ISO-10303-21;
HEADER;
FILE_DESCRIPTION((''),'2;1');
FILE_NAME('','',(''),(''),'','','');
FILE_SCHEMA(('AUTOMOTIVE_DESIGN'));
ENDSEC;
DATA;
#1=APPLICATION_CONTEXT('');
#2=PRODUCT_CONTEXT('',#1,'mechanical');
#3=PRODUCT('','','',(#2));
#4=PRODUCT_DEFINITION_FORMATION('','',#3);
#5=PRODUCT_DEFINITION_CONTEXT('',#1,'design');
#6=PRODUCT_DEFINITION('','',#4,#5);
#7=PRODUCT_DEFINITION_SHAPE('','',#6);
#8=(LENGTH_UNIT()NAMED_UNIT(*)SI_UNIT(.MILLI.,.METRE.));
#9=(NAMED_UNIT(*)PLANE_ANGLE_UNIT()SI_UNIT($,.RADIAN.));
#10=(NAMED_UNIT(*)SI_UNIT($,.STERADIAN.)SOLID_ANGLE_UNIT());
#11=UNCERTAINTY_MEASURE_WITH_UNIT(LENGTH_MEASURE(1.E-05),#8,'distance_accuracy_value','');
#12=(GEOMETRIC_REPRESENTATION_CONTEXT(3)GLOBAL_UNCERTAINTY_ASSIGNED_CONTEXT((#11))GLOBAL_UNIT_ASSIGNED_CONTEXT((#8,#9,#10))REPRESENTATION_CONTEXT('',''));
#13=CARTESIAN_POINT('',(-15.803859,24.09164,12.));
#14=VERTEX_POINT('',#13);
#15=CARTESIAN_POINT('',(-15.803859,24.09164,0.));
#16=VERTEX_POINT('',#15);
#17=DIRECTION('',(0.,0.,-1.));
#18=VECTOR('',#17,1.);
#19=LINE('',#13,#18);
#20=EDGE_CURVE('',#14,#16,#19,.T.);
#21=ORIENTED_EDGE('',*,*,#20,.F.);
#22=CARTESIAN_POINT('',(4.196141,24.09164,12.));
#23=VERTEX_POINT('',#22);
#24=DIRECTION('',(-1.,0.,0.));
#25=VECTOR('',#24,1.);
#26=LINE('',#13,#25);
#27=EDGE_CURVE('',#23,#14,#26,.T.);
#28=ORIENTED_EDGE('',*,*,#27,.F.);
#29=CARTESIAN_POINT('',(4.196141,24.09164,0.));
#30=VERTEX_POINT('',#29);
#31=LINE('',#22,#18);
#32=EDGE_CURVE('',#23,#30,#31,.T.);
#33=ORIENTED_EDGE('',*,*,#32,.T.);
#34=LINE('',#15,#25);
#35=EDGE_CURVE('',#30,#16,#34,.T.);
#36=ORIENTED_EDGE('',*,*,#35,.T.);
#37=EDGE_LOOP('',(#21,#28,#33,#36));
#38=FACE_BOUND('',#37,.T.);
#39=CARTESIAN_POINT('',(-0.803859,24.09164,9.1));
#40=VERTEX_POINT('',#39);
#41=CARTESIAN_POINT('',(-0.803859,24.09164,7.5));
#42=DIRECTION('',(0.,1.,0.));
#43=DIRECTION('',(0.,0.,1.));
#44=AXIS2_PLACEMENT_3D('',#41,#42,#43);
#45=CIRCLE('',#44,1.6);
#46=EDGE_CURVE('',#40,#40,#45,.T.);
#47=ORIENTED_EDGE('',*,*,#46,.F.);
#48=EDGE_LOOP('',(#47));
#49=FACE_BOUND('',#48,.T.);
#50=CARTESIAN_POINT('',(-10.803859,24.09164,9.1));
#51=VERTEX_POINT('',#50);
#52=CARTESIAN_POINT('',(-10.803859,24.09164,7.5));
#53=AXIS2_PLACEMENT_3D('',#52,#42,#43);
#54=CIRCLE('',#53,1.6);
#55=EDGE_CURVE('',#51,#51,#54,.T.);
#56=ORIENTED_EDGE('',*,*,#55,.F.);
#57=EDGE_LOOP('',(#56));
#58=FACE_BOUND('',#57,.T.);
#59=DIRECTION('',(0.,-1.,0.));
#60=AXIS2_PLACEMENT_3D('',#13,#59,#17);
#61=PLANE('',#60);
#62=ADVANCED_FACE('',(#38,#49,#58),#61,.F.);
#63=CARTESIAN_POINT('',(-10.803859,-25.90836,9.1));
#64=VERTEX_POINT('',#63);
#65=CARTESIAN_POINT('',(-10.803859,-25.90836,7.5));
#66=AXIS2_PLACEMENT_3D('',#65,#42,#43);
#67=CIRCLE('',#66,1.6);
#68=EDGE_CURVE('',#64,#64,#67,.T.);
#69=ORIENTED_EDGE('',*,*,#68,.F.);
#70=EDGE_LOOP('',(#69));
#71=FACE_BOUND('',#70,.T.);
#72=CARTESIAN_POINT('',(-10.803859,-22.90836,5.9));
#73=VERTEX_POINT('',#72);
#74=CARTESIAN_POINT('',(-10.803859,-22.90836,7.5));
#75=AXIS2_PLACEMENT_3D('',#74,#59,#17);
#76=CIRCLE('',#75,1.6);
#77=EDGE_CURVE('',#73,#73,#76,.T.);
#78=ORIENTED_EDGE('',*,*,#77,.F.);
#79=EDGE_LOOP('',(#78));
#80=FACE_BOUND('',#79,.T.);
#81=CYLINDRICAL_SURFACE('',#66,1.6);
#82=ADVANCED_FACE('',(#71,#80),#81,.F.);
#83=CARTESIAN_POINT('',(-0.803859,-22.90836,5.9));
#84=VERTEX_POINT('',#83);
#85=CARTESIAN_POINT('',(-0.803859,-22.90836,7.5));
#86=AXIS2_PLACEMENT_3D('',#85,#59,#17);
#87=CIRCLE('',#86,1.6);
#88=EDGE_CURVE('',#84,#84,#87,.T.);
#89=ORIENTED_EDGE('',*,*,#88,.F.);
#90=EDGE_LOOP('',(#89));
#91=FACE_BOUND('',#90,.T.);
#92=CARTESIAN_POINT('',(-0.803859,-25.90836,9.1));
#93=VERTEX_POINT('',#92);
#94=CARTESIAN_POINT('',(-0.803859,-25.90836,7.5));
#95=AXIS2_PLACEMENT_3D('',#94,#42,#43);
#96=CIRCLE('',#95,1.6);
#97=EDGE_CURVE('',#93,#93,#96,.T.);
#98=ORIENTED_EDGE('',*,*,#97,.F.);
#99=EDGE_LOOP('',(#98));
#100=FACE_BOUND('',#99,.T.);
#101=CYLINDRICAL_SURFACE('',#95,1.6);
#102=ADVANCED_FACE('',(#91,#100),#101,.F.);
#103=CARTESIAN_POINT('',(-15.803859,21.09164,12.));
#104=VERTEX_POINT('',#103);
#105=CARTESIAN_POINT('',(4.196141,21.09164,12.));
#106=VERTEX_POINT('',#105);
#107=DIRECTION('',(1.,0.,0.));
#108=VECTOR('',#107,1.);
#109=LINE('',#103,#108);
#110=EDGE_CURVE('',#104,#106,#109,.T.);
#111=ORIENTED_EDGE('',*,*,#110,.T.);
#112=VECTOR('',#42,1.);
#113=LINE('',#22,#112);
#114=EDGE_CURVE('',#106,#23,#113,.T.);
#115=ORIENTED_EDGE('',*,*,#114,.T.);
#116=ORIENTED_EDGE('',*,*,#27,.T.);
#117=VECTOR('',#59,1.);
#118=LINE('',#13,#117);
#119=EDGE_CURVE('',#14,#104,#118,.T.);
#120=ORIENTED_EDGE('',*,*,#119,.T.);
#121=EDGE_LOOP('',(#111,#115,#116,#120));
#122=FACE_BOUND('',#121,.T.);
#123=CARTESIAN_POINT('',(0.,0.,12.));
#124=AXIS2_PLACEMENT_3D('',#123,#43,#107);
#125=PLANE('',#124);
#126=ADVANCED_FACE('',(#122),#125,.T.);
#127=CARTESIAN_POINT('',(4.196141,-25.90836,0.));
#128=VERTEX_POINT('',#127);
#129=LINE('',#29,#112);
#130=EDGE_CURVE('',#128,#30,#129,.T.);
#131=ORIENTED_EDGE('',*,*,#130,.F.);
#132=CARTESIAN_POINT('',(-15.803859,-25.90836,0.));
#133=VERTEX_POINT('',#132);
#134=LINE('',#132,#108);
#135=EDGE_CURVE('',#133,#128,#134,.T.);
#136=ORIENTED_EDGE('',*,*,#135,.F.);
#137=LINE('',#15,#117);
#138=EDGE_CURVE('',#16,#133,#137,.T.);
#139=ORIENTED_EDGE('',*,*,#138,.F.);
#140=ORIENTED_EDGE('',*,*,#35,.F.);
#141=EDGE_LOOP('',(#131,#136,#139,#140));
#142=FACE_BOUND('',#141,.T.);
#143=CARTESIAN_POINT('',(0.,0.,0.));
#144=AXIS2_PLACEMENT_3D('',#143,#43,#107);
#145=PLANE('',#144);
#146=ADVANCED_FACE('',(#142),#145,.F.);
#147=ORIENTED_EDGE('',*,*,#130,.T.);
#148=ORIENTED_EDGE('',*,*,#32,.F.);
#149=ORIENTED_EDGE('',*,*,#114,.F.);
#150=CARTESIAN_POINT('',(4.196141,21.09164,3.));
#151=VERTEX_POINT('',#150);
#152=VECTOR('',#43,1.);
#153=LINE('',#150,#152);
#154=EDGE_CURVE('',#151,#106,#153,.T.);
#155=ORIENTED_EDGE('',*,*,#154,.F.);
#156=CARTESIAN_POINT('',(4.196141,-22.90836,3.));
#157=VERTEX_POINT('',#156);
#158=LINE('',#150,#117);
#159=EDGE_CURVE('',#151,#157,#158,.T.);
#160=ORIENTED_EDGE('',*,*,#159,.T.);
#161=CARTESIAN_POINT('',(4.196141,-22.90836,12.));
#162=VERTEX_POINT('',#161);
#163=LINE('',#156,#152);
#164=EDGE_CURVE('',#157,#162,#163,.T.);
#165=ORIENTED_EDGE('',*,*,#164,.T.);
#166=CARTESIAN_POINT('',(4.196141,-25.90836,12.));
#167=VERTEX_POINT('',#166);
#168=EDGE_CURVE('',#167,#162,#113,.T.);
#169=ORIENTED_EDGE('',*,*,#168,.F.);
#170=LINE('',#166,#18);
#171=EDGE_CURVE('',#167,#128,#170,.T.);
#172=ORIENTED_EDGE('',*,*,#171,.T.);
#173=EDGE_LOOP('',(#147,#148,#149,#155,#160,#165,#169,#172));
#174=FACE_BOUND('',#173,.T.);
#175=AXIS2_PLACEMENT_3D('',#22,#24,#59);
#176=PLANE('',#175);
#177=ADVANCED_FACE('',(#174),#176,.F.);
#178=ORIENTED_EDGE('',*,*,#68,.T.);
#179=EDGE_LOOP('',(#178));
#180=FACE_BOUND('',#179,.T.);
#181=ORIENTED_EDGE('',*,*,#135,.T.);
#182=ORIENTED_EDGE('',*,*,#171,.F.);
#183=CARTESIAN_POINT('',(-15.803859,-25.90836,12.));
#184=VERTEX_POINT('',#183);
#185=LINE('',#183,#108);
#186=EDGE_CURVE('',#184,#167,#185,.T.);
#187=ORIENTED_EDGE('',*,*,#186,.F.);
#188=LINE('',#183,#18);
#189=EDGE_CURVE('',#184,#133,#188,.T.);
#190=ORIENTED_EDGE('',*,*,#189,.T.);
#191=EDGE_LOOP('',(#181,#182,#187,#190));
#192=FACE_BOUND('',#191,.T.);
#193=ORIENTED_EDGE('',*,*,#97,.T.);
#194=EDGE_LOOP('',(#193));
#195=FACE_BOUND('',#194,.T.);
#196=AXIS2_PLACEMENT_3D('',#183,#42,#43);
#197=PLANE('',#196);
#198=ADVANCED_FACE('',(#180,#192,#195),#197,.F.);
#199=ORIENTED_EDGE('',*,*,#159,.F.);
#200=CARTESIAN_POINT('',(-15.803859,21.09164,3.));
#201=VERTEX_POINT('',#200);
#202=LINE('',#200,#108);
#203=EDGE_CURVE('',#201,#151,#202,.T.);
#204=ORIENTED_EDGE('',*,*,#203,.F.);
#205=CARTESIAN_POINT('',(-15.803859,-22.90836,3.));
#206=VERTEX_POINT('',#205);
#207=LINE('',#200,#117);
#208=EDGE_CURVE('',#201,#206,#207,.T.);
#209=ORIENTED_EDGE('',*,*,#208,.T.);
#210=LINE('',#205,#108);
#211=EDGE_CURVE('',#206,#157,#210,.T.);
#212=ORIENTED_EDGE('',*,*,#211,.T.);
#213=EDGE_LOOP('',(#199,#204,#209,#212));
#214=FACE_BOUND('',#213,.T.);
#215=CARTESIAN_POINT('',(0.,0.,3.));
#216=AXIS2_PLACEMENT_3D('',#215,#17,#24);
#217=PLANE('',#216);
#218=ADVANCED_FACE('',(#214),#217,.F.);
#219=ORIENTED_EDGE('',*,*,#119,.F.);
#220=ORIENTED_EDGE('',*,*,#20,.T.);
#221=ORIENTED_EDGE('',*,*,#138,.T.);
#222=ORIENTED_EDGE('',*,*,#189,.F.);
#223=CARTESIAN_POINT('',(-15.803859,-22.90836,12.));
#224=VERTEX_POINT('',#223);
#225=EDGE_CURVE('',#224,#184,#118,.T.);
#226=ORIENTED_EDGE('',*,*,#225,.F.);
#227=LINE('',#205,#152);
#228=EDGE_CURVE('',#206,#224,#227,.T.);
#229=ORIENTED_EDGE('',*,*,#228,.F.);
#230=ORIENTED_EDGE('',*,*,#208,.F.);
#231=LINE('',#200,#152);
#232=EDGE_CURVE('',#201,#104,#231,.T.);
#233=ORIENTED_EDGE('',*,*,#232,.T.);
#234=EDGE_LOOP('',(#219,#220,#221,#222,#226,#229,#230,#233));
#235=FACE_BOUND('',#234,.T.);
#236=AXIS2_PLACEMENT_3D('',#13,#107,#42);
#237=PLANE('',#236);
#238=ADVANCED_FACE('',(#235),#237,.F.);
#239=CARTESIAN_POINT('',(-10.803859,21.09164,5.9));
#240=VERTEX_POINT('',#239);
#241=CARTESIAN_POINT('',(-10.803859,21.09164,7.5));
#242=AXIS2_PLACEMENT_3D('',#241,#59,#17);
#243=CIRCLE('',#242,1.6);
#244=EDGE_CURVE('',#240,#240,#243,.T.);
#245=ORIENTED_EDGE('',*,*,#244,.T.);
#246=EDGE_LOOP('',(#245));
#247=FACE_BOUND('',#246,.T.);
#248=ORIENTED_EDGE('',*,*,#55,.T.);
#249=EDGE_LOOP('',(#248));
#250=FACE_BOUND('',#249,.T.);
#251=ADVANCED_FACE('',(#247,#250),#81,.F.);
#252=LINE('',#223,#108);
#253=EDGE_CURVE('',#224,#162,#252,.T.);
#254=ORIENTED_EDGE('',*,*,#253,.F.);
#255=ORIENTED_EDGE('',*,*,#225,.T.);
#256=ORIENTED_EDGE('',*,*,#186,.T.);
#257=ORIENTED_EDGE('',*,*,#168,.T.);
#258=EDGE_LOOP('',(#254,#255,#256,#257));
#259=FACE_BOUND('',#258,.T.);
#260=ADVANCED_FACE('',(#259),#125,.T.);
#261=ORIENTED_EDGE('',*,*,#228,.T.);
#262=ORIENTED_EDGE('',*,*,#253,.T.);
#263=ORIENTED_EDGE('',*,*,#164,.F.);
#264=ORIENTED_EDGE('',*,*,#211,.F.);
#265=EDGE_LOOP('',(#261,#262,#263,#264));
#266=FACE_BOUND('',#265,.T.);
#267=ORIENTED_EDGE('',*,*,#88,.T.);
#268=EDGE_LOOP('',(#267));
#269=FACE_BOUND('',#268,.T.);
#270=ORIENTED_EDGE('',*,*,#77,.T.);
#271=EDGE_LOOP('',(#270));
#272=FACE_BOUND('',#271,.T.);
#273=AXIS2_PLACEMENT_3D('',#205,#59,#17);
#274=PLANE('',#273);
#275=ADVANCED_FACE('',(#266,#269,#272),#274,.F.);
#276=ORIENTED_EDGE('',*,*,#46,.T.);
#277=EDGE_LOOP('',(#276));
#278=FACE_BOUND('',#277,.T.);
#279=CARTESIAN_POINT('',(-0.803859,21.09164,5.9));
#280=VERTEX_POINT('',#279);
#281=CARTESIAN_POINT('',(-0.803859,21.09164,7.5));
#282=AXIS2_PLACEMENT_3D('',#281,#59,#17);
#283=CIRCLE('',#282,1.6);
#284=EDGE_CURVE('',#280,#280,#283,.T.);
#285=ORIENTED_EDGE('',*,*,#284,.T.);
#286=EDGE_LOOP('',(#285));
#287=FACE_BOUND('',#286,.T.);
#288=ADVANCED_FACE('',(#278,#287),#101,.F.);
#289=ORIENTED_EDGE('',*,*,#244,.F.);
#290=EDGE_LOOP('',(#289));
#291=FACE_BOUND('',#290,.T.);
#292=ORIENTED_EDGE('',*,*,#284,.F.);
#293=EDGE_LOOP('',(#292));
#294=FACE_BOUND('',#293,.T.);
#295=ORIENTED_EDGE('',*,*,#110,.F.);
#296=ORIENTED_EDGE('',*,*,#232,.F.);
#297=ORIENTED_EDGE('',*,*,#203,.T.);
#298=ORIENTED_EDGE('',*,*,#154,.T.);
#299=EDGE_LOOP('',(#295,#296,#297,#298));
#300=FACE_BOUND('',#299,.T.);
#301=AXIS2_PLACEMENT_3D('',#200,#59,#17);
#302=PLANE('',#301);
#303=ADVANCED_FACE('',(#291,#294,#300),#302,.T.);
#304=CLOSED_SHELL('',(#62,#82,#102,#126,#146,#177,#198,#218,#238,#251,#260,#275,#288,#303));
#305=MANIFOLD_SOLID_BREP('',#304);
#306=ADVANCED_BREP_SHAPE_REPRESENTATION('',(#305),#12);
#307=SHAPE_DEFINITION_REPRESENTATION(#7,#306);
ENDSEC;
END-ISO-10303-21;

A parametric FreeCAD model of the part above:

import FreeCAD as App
import Part
import Sketcher
from FreeCAD import Vector

doc = App.newDocument("Part")
body = doc.addObject("PartDesign::Body", "Body")

sketch1 = doc.addObject("Sketcher::SketchObject", "Sketch")
body.addObject(sketch1)
sketch1.AttachmentSupport = (doc.XY_Plane, [""])
sketch1.MapMode = "FlatFace"
sketch1.addGeometry([
    Part.LineSegment(Vector(-16, 24, 0), Vector(-16, -26, 0)),
    Part.LineSegment(Vector(-16, -26, 0), Vector(4, -26, 0)),
    Part.LineSegment(Vector(4, -26, 0), Vector(4, 24, 0)),
    Part.LineSegment(Vector(4, 24, 0), Vector(-16, 24, 0)),
], False)
sketch1.addConstraint([
    Sketcher.Constraint("Coincident", 0, 2, 1, 1),
    Sketcher.Constraint("Coincident", 1, 2, 2, 1),
    Sketcher.Constraint("Coincident", 2, 2, 3, 1),
    Sketcher.Constraint("Coincident", 3, 2, 0, 1),
    Sketcher.Constraint("Vertical", 0),
    Sketcher.Constraint("Horizontal", 1),
    Sketcher.Constraint("Vertical", 2),
    Sketcher.Constraint("Horizontal", 3),
    Sketcher.Constraint("DistanceX", 1, 1, 1, 2, 20.0),
    Sketcher.Constraint("DistanceY", 0, 2, 0, 1, 50.0),
    Sketcher.Constraint("DistanceX", 0, 2, -1, 1, 15.803859),
    Sketcher.Constraint("DistanceY", 0, 2, -1, 1, 25.90836),
])
pad1 = doc.addObject("PartDesign::Pad", "Pad")
body.addObject(pad1)
pad1.Profile = sketch1
pad1.Length = 12

sketch2 = doc.addObject("Sketcher::SketchObject", "Sketch001")
body.addObject(sketch2)
sketch2.AttachmentSupport = (doc.XY_Plane, [""])
sketch2.MapMode = "FlatFace"
sketch2.AttachmentOffset = App.Placement(Vector(0, 0, 12), App.Rotation())
sketch2.addGeometry([
    Part.LineSegment(Vector(-16, 21, 0), Vector(-16, -23, 0)),
    Part.LineSegment(Vector(-16, -23, 0), Vector(4, -23, 0)),
    Part.LineSegment(Vector(4, -23, 0), Vector(4, 21, 0)),
    Part.LineSegment(Vector(4, 21, 0), Vector(-16, 21, 0)),
], False)
sketch2.addConstraint([
    Sketcher.Constraint("Coincident", 0, 2, 1, 1),
    Sketcher.Constraint("Coincident", 1, 2, 2, 1),
    Sketcher.Constraint("Coincident", 2, 2, 3, 1),
    Sketcher.Constraint("Coincident", 3, 2, 0, 1),
    Sketcher.Constraint("Vertical", 0),
    Sketcher.Constraint("Horizontal", 1),
    Sketcher.Constraint("Vertical", 2),
    Sketcher.Constraint("Horizontal", 3),
    Sketcher.Constraint("DistanceX", 1, 1, 1, 2, 20.0),
    Sketcher.Constraint("DistanceY", 0, 2, 0, 1, 44.0),
    Sketcher.Constraint("DistanceX", 0, 2, -1, 1, 15.803859),
    Sketcher.Constraint("DistanceY", 0, 2, -1, 1, 22.90836),
])
pocket1 = doc.addObject("PartDesign::Pocket", "Pocket")
body.addObject(pocket1)
pocket1.Profile = sketch2
pocket1.Length = 9

sketch3 = doc.addObject("Sketcher::SketchObject", "Sketch002")
body.addObject(sketch3)
sketch3.AttachmentSupport = (doc.XZ_Plane, [""])
sketch3.MapMode = "FlatFace"
sketch3.AttachmentOffset = App.Placement(Vector(0, 0, -24.09164), App.Rotation())
sketch3.addGeometry([
    Part.Circle(Vector(-10.8, 7.5, 0), Vector(0, 0, 1), 1.6),
    Part.Circle(Vector(-0.8, 7.5, 0), Vector(0, 0, 1), 1.6),
], False)
sketch3.addConstraint([
    Sketcher.Constraint("Equal", 0, 1),
    Sketcher.Constraint("Horizontal", 0, 3, 1, 3),
    Sketcher.Constraint("Diameter", 0, 3.2),
    Sketcher.Constraint("DistanceX", 0, 3, 1, 3, 10.0),
    Sketcher.Constraint("DistanceY", -1, 1, 0, 3, 7.5),
    Sketcher.Constraint("DistanceX", 0, 3, -1, 1, 10.803859),
])
pocket2 = doc.addObject("PartDesign::Pocket", "Pocket001")
body.addObject(pocket2)
pocket2.Profile = sketch3
pocket2.Type = "ThroughAll"
pocket2.Reversed = True

doc.recompute()
